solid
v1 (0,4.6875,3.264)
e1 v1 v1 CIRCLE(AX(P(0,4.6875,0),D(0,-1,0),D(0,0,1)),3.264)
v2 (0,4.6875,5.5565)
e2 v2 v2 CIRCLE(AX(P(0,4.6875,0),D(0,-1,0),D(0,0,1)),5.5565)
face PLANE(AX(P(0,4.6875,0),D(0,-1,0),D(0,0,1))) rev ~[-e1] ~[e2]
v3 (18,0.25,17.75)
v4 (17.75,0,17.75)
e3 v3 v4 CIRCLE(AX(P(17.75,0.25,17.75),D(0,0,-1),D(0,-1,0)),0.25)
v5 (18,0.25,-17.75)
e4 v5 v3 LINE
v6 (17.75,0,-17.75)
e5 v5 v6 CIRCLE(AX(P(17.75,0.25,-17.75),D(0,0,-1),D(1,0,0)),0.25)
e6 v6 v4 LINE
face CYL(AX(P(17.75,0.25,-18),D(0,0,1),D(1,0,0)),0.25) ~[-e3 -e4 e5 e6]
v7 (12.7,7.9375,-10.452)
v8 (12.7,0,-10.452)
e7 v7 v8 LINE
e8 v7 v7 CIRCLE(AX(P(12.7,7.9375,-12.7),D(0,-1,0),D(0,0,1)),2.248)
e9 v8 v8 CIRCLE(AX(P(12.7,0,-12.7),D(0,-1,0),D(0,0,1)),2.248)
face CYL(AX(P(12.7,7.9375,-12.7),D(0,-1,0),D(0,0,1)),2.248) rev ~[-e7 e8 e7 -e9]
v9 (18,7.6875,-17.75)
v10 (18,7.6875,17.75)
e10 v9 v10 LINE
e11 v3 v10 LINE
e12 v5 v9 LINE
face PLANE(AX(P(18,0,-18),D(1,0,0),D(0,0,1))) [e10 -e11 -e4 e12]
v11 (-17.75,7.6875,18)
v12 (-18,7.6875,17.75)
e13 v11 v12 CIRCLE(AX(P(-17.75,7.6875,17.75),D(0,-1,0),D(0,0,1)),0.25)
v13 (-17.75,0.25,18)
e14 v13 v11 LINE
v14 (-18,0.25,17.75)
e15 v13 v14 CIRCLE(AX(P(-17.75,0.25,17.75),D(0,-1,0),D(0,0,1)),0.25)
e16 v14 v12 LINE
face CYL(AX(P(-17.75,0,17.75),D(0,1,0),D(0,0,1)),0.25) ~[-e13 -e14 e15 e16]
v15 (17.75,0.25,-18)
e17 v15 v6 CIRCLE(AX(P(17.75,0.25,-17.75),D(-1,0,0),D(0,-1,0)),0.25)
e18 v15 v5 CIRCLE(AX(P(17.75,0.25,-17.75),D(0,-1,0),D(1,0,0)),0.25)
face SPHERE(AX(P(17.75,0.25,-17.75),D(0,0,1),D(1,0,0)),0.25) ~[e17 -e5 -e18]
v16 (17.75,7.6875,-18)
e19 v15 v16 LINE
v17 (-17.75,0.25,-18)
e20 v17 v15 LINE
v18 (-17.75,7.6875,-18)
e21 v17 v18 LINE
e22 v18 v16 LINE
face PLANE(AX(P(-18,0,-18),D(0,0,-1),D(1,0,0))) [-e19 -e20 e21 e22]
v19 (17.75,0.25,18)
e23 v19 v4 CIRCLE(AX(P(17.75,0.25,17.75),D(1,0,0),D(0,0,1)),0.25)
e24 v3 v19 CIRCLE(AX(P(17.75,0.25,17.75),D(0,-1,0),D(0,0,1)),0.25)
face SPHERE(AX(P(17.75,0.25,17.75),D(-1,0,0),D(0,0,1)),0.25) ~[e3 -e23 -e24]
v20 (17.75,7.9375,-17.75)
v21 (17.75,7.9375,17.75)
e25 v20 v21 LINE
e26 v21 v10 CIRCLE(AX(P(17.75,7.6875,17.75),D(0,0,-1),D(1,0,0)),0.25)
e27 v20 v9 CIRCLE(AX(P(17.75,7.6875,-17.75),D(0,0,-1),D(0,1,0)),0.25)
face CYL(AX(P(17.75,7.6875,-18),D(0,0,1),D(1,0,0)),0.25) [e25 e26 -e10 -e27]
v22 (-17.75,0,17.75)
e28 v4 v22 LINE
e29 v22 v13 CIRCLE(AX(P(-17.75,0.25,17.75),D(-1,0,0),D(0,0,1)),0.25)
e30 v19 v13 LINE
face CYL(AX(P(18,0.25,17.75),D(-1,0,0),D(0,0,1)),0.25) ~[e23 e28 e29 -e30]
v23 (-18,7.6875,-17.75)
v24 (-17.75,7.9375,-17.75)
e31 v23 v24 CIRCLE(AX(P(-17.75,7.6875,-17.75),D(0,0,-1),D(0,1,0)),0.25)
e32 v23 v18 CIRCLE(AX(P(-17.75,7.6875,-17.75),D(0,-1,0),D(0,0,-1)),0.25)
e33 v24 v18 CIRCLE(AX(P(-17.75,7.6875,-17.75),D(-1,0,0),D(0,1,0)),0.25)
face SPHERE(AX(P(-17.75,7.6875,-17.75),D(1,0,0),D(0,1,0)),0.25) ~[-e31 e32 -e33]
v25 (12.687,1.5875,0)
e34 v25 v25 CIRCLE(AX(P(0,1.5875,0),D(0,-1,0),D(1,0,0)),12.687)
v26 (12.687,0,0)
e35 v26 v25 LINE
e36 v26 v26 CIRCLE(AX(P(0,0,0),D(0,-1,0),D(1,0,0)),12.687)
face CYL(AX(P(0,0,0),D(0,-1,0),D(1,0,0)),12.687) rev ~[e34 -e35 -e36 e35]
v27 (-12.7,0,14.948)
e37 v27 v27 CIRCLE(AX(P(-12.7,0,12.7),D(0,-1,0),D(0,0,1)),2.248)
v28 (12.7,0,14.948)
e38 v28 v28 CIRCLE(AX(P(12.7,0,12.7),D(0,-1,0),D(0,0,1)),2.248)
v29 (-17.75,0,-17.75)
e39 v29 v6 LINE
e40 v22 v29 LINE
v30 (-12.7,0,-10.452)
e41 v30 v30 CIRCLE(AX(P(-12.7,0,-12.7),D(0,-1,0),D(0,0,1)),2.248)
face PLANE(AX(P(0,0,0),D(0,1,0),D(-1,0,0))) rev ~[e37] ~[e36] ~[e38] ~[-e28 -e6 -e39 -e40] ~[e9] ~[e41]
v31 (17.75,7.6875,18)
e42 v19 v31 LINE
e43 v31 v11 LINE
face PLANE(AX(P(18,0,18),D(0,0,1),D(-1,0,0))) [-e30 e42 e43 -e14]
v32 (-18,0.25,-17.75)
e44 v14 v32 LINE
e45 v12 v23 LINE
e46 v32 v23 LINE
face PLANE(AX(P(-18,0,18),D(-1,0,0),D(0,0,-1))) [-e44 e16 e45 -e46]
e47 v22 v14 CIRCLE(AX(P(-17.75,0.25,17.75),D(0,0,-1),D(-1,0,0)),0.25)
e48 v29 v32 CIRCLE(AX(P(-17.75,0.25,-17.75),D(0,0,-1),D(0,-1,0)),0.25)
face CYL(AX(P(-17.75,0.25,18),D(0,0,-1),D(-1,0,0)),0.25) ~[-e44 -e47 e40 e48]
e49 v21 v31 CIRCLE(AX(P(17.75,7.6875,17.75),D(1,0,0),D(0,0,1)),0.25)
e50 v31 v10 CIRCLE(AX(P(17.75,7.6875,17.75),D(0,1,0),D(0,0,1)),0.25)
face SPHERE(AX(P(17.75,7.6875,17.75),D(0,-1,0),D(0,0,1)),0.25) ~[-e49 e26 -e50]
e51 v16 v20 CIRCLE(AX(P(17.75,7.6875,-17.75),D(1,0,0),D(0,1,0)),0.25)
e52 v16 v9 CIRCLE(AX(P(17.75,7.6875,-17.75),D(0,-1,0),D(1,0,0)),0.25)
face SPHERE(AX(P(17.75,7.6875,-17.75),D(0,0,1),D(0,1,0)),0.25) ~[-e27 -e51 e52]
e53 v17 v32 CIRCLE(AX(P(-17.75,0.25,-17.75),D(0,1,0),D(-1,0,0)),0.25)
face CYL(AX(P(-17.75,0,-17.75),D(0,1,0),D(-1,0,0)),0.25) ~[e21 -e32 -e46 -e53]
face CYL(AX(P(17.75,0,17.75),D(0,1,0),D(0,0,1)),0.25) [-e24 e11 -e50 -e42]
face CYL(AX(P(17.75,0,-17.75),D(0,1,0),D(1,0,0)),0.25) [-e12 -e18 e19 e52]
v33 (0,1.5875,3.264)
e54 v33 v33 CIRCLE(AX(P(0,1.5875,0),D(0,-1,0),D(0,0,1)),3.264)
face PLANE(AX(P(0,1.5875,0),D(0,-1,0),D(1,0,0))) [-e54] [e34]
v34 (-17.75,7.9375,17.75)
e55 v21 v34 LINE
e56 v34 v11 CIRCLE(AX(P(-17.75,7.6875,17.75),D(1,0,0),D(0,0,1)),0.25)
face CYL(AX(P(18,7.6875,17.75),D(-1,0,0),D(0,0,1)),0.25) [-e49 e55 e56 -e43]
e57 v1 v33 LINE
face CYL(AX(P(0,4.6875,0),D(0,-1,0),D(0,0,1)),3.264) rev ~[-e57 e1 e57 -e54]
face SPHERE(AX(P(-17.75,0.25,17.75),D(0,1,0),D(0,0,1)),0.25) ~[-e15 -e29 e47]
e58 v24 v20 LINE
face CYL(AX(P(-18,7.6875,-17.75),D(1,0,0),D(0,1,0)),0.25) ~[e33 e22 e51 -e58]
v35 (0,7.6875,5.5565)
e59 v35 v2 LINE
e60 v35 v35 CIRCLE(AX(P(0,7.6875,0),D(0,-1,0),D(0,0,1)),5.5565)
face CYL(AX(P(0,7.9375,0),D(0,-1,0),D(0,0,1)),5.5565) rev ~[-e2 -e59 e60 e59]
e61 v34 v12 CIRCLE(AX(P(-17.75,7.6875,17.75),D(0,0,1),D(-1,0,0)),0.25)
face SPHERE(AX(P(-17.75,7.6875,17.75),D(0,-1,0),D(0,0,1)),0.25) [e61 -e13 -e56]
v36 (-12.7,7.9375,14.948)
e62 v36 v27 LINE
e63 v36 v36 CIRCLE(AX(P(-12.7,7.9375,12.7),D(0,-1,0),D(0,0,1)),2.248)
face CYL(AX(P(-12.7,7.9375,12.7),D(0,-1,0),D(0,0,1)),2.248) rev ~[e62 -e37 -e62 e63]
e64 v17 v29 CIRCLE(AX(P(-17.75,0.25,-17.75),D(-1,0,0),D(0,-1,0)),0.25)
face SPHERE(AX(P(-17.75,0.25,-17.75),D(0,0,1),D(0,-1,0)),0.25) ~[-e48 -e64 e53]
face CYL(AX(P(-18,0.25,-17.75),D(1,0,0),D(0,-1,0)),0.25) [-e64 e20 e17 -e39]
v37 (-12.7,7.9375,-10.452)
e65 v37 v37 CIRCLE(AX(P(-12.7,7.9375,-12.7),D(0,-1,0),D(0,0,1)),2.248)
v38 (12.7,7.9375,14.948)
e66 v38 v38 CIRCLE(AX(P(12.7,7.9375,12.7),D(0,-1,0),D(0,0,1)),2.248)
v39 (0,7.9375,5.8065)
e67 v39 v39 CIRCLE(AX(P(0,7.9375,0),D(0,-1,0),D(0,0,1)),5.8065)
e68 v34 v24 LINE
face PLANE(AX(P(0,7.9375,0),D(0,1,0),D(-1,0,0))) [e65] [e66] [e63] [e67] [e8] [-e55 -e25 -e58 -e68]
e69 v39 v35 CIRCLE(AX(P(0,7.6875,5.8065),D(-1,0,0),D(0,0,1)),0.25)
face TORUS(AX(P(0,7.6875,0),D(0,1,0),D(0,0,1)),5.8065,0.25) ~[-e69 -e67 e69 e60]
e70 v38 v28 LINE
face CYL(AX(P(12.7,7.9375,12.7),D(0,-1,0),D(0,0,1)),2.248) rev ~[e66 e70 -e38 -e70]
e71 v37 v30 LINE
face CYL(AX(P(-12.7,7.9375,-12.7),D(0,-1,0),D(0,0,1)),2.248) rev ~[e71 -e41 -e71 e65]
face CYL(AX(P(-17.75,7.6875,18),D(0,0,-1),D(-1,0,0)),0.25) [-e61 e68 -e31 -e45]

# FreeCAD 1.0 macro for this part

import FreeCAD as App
import Part
import Sketcher

V = App.Vector
Q = App.Units.Quantity


def edges_at(feature, points):
    """Names of the edges that pass closest to the given points."""
    edges = feature.Shape.Edges
    near = lambda p: min(range(len(edges)), key=lambda i: edges[i].distToShape(Part.Vertex(*p))[0])
    return sorted({f"Edge{near(p) + 1}" for p in points})

doc = App.newDocument("Part")
body = doc.addObject("PartDesign::Body", "Body")

# Sketch on XZ plane
sketch1 = body.newObject("Sketcher::SketchObject", "Sketch")
sketch1.AttachmentSupport = (doc.getObject("XZ_Plane"), [""])
sketch1.MapMode = "FlatFace"
sketch1.addGeometry([
    Part.LineSegment(V(-18, 18, 0), V(18, 18, 0)),
    Part.LineSegment(V(18, 18, 0), V(18, -18, 0)),
    Part.LineSegment(V(18, -18, 0), V(-18, -18, 0)),
    Part.LineSegment(V(-18, -18, 0), V(-18, 18, 0)),
], False)
sketch1.addConstraint([
    Sketcher.Constraint("Coincident", 0, 2, 1, 1),
    Sketcher.Constraint("Coincident", 1, 2, 2, 1),
    Sketcher.Constraint("Coincident", 2, 2, 3, 1),
    Sketcher.Constraint("Coincident", 3, 2, 0, 1),
    Sketcher.Constraint("Horizontal", 0),
    Sketcher.Constraint("Vertical", 1),
    Sketcher.Constraint("Horizontal", 2),
    Sketcher.Constraint("Vertical", 3),
    Sketcher.Constraint("Symmetric", 0, 2, 2, 2, -1, 1),
    Sketcher.Constraint("Equal", 2, 1),
    Sketcher.Constraint("DistanceX", 0, 1, 0, 2, Q("36 mm")),
])
pad1 = body.newObject("PartDesign::Pad", "Pad")
pad1.Profile = sketch1
pad1.Length = Q("0.3125 in")
pad1.Reversed = True

# Sketch on XZ plane
sketch2 = body.newObject("Sketcher::SketchObject", "Sketch001")
sketch2.AttachmentSupport = (doc.getObject("XZ_Plane"), [""])
sketch2.MapMode = "FlatFace"
sketch2.AttachmentOffset = App.Placement(V(0, 0, -0.3125 * 25.4), App.Rotation())
sketch2.addGeometry([
    Part.Circle(V(-12.7, -12.7, 0), V(0, 0, 1), 2.248),
    Part.Circle(V(12.7, -12.7, 0), V(0, 0, 1), 2.248),
    Part.Circle(V(-12.7, 12.7, 0), V(0, 0, 1), 2.248),
    Part.Circle(V(12.7, 12.7, 0), V(0, 0, 1), 2.248),
], False)
sketch2.addConstraint([
    Sketcher.Constraint("Equal", 0, 1),
    Sketcher.Constraint("Equal", 1, 2),
    Sketcher.Constraint("Equal", 2, 3),
    Sketcher.Constraint("Symmetric", 1, 3, 2, 3, -1, 1),
    Sketcher.Constraint("Symmetric", 0, 3, 3, 3, -1, 1),
    Sketcher.Constraint("Symmetric", 0, 3, 1, 3, -2),
    Sketcher.Constraint("Diameter", 0, Q("0.177 in")),
    Sketcher.Constraint("DistanceX", 0, 3, 1, 3, Q("1 in")),
    Sketcher.Constraint("DistanceY", 0, 3, 2, 3, Q("1 in")),
])
doc.recompute()
hole = body.newObject("PartDesign::Hole", "Hole")
hole.Profile = sketch2
hole.ThreadType = "None"
hole.Diameter = Q("0.1770079 in")
hole.DepthType = "Dimension"
hole.Depth = 12.3
hole.DrillPoint = "Angled"
hole.DrillPointAngle = 118
hole.Reversed = True

# Sketch on XZ plane
sketch3 = body.newObject("Sketcher::SketchObject", "Sketch002")
sketch3.AttachmentSupport = (doc.getObject("XZ_Plane"), [""])
sketch3.MapMode = "FlatFace"
sketch3.AttachmentOffset = App.Placement(V(0, 0, -0.3125 * 25.4), App.Rotation())
sketch3.addGeometry(Part.Circle(V(0, 0, 0), V(0, 0, 1), 3.264), False)
sketch3.addConstraint([
    Sketcher.Constraint("Coincident", 0, 3, -1, 1),
    Sketcher.Constraint("Diameter", 0, Q("0.257 in")),
])
doc.recompute()
hole2 = body.newObject("PartDesign::Hole", "Hole001")
hole2.Profile = sketch3
hole2.ThreadType = "None"
hole2.Diameter = Q("0.2570079 in")
hole2.DepthType = "ThroughAll"
hole2.HoleCutType = "Counterbore"
hole2.HoleCutDiameter = 11.113
hole2.HoleCutDepth = 3.25
hole2.Reversed = True
doc.recompute()

fillet = body.newObject("PartDesign::Fillet", "Fillet")
fillet.Base = (hole2, edges_at(hole2, [
    (-18, 3.969, 18),
    (0, 0, 18),
    (18, 3.969, 18),
    (0, 7.938, 18),
    (18, 7.938, 0),
    (0, 7.938, -18),
    (-18, 7.938, 0),
    (18, 0, 0),
    (18, 3.969, -18),
    (-18, 0, 0),
    (0, 0, -18),
    (-18, 3.969, -18),
]))
fillet.Radius = 0.25
doc.recompute()

fillet2 = body.newObject("PartDesign::Fillet", "Fillet001")
fillet2.Base = (fillet, edges_at(fillet, [(0, 7.938, -5.556)]))
fillet2.Radius = 0.25

# Sketch on XZ plane
sketch4 = body.newObject("Sketcher::SketchObject", "Sketch003")
sketch4.AttachmentSupport = (doc.getObject("XZ_Plane"), [""])
sketch4.MapMode = "FlatFace"
sketch4.addGeometry(Part.Circle(V(0, 0, 0), V(0, 0, 1), 12.687), False)
sketch4.addConstraint([
    Sketcher.Constraint("Coincident", 0, 3, -1, 1),
    Sketcher.Constraint("Diameter", 0, Q("25.374 mm")),
])
pocket1 = body.newObject("PartDesign::Pocket", "Pocket")
pocket1.Profile = sketch4
pocket1.Length = Q("0.0625 in")

doc.recompute()
